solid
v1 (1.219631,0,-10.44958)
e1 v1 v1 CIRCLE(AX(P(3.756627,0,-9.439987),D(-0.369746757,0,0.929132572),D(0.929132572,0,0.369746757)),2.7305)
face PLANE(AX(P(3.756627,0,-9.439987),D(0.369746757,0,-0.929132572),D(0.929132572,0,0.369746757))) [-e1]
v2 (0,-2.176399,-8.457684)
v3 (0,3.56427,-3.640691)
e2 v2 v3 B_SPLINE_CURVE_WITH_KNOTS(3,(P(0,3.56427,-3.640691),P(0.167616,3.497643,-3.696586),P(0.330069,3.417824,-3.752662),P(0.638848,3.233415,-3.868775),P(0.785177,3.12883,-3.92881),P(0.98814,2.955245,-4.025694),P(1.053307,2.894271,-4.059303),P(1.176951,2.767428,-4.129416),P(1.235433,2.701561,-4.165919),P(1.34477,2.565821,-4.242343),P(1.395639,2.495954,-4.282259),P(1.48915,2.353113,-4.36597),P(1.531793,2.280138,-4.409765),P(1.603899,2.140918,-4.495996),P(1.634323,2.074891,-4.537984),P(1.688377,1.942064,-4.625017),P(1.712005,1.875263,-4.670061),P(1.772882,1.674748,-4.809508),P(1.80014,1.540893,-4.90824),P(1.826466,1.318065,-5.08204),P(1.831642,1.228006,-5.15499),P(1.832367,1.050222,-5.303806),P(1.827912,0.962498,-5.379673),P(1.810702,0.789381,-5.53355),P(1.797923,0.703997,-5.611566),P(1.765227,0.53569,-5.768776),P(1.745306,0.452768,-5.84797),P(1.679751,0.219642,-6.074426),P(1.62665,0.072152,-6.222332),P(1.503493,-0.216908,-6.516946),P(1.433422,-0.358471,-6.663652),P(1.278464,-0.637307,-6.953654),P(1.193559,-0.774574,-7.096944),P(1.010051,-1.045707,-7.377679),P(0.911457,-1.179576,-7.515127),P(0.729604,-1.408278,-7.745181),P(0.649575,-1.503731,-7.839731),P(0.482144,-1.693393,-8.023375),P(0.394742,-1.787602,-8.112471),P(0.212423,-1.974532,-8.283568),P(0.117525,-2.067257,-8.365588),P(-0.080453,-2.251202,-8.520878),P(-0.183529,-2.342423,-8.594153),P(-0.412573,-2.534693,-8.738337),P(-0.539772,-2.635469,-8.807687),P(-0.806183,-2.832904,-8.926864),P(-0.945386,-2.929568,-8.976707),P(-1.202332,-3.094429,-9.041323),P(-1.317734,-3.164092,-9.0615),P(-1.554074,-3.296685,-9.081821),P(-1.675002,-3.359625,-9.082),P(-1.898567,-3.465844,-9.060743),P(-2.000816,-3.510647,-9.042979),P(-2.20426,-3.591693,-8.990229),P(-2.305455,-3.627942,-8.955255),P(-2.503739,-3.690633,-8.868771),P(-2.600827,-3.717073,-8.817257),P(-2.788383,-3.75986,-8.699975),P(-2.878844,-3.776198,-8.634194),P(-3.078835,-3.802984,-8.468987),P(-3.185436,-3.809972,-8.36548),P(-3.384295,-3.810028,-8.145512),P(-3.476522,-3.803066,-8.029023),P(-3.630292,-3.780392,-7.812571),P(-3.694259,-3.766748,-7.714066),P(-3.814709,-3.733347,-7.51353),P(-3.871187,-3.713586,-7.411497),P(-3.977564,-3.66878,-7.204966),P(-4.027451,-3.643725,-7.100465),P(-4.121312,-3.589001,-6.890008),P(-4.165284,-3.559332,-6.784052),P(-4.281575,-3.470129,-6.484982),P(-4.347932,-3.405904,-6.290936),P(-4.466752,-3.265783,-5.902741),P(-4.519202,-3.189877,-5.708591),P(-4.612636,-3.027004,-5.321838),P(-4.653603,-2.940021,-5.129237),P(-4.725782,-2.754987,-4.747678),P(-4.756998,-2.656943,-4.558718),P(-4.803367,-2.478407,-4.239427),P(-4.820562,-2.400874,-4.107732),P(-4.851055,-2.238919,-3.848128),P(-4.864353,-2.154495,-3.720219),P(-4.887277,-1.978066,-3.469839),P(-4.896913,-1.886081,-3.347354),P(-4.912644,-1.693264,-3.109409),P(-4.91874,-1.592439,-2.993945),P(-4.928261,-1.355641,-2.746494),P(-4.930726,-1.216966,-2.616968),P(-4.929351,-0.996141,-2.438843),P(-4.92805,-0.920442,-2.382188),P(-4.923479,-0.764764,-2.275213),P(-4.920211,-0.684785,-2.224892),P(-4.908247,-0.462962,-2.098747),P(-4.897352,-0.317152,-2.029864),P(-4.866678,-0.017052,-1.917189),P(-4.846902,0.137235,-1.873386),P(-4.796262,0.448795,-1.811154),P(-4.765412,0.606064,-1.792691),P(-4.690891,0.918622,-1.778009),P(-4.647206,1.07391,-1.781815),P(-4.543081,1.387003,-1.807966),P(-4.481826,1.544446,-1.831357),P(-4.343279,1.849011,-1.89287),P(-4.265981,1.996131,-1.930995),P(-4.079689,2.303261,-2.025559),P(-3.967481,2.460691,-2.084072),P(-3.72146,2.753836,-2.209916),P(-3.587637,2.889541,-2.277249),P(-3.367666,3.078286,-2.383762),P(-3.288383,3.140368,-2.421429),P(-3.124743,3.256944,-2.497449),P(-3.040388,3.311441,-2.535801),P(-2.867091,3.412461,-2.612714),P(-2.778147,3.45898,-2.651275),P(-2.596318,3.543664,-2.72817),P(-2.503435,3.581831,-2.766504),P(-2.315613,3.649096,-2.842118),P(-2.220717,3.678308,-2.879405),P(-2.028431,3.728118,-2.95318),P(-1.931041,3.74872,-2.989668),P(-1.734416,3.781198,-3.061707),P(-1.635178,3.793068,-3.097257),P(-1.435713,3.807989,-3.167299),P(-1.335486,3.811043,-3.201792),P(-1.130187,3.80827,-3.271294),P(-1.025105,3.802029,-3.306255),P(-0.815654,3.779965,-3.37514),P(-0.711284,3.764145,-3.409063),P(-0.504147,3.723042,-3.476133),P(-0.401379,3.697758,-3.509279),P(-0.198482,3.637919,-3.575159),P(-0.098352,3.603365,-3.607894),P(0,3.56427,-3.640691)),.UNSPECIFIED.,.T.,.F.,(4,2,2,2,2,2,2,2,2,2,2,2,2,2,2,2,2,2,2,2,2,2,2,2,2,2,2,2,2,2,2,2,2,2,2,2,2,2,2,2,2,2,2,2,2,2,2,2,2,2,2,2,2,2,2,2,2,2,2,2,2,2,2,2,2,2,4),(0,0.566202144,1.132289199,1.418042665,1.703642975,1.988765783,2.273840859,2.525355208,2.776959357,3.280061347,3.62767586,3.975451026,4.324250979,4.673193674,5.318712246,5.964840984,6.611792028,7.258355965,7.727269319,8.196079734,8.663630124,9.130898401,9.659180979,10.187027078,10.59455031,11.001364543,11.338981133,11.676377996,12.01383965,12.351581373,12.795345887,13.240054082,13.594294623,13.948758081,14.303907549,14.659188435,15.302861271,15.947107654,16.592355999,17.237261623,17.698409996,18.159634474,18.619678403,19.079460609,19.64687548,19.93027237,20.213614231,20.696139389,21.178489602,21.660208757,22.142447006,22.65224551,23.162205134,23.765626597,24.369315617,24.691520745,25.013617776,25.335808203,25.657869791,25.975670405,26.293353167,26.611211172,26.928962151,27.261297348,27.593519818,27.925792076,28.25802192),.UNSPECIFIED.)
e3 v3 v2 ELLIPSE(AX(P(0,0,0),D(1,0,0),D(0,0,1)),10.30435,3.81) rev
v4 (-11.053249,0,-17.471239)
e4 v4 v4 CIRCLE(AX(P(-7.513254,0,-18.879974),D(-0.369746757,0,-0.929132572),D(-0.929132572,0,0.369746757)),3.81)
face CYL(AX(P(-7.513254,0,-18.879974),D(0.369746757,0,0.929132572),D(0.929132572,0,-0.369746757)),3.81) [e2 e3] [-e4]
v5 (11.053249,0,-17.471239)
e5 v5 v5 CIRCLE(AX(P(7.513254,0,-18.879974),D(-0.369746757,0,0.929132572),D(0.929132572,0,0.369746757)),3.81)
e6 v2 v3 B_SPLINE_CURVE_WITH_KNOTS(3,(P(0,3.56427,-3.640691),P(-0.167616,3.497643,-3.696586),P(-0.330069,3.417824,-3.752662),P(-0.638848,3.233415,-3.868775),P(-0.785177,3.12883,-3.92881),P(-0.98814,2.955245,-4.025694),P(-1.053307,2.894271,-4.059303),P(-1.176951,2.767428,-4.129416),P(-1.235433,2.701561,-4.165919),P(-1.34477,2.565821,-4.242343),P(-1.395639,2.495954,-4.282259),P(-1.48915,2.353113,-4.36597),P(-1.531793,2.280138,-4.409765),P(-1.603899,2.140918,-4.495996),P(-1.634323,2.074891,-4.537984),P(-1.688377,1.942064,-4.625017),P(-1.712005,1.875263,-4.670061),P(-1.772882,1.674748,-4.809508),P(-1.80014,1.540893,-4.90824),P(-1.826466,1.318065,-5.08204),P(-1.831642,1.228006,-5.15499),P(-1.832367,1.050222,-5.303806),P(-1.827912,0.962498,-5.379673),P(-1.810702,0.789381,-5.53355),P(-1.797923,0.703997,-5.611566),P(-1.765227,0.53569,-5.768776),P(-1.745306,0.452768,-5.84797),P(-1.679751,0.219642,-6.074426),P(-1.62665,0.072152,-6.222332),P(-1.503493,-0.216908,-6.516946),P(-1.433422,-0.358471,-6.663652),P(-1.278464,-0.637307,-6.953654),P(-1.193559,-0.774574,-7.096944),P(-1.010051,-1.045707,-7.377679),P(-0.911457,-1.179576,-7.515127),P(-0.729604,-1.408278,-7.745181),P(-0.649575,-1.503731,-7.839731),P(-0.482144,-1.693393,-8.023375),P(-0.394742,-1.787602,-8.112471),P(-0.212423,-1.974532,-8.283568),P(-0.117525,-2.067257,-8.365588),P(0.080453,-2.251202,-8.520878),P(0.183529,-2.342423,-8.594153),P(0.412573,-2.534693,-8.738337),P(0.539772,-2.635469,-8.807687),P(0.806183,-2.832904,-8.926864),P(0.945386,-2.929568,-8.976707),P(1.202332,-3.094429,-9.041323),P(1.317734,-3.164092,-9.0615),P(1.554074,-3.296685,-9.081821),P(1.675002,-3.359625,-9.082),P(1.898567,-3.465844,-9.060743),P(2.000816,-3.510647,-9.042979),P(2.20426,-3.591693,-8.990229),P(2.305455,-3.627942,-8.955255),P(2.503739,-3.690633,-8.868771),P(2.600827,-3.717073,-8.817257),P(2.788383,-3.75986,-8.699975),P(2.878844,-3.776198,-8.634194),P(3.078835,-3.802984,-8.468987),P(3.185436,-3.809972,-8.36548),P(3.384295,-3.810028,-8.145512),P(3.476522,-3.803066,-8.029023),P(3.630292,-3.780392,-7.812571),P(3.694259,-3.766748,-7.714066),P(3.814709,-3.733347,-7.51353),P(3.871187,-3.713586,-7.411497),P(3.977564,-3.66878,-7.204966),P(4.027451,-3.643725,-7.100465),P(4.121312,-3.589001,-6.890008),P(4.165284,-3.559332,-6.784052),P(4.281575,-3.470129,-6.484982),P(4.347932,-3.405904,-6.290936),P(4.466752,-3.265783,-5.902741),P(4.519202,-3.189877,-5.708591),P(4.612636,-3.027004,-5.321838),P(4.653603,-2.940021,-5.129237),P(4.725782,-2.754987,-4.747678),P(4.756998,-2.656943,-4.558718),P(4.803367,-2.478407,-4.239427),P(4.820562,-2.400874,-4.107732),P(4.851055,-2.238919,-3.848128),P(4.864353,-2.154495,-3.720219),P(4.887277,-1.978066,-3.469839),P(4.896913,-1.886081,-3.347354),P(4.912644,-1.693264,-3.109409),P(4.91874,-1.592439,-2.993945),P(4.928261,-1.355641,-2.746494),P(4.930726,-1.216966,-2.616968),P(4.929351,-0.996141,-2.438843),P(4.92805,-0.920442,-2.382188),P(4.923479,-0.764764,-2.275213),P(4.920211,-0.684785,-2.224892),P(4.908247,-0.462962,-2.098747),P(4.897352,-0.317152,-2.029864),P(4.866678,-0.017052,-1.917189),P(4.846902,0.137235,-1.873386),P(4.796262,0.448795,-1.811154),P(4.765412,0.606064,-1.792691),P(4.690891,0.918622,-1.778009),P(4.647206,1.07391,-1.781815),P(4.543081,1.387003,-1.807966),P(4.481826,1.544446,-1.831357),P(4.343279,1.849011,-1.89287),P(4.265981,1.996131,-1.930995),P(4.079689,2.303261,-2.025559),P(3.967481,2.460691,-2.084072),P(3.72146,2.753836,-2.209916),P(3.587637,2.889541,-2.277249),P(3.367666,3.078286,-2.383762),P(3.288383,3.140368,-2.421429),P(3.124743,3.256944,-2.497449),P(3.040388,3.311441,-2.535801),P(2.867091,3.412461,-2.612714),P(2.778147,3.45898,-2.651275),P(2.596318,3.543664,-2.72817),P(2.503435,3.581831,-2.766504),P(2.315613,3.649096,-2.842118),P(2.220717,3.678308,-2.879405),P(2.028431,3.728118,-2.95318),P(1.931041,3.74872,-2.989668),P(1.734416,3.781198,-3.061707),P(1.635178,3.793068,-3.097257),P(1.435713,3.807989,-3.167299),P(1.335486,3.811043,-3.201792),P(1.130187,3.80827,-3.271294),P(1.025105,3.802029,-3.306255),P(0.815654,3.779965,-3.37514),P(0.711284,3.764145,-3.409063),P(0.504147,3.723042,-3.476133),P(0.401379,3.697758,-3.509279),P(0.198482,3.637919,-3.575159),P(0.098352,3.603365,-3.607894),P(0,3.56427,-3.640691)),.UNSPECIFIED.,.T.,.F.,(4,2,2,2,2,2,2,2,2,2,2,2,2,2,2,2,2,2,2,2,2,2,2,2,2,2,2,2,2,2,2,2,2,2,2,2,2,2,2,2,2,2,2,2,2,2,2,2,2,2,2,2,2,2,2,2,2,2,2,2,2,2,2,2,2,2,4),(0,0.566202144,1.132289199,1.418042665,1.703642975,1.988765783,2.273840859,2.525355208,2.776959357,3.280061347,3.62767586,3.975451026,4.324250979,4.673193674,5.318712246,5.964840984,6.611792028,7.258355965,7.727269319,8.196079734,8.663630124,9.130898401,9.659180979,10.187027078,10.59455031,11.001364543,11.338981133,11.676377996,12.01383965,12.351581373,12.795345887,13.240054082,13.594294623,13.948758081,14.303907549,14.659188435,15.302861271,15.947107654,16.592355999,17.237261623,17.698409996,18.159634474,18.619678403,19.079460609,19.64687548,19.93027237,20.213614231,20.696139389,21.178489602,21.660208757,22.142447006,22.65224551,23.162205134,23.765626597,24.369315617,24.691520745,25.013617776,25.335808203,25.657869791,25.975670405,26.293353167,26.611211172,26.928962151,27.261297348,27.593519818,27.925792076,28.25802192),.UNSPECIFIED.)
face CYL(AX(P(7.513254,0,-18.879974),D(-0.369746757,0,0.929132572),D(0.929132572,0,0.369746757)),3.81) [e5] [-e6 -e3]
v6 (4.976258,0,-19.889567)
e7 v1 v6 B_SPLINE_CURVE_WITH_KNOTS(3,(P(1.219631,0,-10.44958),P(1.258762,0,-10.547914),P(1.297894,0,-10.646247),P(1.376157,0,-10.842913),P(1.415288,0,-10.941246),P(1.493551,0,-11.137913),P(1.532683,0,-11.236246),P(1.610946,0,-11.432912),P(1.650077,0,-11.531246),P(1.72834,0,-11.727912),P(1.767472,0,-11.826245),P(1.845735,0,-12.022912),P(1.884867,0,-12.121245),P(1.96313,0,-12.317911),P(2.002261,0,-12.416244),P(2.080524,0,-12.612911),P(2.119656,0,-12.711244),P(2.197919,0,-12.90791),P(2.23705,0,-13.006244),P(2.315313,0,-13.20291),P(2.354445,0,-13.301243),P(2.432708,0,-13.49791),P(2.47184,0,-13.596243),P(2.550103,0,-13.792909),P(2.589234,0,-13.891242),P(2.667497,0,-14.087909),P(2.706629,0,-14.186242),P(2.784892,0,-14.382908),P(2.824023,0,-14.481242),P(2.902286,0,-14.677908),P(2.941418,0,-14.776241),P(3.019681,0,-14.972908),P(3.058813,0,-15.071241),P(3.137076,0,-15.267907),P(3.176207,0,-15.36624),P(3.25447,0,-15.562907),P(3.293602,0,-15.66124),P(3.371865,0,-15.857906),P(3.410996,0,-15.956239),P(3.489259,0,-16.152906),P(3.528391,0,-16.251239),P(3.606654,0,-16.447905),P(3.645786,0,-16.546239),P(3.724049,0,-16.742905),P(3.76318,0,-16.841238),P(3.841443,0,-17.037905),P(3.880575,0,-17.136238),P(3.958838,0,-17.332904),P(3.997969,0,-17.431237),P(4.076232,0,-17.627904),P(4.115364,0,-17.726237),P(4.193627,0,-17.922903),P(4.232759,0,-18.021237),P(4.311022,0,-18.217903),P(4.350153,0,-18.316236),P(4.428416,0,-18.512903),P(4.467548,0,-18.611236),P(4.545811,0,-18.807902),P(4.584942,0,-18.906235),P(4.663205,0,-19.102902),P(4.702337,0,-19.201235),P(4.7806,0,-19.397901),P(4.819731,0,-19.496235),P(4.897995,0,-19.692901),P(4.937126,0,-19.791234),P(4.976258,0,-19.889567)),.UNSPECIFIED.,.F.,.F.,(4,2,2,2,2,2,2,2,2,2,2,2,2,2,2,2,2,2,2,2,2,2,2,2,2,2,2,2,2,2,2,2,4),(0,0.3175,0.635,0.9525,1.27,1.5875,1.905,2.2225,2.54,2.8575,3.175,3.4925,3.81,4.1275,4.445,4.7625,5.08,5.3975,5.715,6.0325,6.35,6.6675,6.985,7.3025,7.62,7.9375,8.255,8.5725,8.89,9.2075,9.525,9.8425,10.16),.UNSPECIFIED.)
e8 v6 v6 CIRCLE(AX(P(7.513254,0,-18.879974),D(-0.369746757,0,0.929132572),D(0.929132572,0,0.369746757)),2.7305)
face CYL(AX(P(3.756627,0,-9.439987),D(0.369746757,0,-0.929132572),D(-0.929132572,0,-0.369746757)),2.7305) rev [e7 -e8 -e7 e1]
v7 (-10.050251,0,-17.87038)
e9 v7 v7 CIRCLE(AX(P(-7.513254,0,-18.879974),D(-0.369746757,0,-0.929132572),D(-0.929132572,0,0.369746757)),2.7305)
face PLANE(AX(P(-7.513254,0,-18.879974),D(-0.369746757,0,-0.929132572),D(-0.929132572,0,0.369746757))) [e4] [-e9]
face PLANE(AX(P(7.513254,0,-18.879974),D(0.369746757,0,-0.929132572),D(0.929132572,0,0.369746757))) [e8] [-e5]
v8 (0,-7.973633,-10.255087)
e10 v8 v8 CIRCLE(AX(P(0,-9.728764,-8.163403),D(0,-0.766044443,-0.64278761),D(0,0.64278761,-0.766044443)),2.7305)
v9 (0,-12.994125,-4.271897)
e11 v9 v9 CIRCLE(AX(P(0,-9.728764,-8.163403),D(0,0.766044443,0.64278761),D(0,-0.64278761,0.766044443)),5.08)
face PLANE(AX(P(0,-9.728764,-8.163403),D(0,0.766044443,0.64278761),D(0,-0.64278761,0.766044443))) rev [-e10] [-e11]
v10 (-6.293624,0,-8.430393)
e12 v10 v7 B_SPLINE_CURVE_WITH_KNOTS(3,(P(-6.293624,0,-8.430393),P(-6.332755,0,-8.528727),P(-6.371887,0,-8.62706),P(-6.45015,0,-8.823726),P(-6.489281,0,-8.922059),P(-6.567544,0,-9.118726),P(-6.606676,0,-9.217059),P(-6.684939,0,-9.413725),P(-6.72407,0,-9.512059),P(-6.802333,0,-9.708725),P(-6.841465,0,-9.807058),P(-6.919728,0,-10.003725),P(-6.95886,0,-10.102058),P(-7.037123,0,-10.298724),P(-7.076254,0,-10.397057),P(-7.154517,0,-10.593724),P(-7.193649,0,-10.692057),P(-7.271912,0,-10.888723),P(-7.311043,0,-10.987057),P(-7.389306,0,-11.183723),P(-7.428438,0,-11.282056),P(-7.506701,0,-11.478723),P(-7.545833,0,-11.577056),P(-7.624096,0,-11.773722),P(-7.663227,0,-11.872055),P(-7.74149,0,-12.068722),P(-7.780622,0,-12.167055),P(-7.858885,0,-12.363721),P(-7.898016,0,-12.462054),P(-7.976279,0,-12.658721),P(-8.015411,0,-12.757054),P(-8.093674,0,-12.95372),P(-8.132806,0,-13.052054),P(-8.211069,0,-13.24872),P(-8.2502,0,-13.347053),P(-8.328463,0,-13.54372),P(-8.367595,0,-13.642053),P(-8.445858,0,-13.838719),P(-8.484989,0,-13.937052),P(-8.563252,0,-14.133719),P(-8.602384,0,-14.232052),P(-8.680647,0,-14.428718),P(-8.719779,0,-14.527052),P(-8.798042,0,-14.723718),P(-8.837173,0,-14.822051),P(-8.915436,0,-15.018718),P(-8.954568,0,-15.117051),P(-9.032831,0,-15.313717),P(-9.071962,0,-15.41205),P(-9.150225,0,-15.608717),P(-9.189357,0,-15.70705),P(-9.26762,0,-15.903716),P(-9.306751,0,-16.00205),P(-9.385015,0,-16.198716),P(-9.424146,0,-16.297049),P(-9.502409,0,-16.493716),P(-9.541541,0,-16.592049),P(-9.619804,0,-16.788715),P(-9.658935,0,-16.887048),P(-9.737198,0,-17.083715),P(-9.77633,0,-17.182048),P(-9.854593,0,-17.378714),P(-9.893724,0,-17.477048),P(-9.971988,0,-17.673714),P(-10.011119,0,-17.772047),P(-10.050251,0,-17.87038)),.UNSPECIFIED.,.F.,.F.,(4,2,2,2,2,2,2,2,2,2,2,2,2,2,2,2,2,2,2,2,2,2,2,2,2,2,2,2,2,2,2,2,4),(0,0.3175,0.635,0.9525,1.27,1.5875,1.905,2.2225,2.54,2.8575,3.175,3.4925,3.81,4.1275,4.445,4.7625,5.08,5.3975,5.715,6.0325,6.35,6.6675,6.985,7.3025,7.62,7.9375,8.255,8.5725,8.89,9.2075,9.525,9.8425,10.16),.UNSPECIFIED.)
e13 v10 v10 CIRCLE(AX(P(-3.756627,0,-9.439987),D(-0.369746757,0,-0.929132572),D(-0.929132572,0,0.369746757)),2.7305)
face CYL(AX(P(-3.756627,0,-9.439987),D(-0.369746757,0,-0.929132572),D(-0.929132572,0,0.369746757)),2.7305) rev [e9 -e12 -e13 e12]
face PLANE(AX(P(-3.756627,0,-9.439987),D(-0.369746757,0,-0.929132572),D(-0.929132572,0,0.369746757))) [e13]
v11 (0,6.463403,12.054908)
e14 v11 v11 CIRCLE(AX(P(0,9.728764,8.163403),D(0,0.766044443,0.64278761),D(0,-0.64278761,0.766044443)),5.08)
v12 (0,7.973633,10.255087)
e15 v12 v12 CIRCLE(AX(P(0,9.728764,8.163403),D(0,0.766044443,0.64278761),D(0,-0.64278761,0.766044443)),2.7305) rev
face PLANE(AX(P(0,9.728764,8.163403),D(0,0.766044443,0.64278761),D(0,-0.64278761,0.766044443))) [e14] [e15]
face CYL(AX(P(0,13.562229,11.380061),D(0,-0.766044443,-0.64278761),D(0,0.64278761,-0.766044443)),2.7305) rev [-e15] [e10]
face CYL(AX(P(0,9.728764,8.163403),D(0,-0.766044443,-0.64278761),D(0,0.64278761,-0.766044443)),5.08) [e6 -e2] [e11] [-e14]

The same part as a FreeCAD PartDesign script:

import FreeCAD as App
import Part
import Sketcher
Q = App.Units.Quantity

doc = App.newDocument("Part")
params = doc.addObject("Spreadsheet::Sheet", "Params")
for row, (alias, value) in enumerate([
    ("sketch1_diameter", "0.4 in"),
    ("pad1_length", "1 in"),
    ("sketch2_diameter", "0.3 in"),
    ("pad2_length", "0.8 in"),
    ("sketch3_diameter", "0.215 in"),
    ("pocket1_length", "0.4 in"),
    ("sketch4_diameter", "0.215 in"),
], start=1):
    params.set(f"A{row}", alias)
    params.set(f"B{row}", "=" + value)
    params.setAlias(f"B{row}", alias)

body = doc.addObject("PartDesign::Body", "Body")

# Sketch on an angled plane
sketch1 = body.newObject("Sketcher::SketchObject", "Sketch")
sketch1.Placement = App.Placement(App.Vector(0, 0, 0), App.Rotation(App.Vector(1, 0, 0), App.Vector(0, 0.64278761, -0.766044443), App.Vector(0, 0.766044443, 0.64278761), "ZXY"))
sketch1.addGeometry(Part.Circle(App.Vector(0, 0, 0), App.Vector(0, 0, 1), 5), False)
sketch1.addConstraint([
    Sketcher.Constraint("Coincident", 0, 3, -1, 1),
    Sketcher.Constraint("Diameter", 0, Q("0.4 in")),
])
sketch1.setExpression("Constraints[1]", "Params.sketch1_diameter")
pad1 = body.newObject("PartDesign::Pad", "Pad")
pad1.Profile = sketch1
pad1.setExpression("Length", "Params.pad1_length")
pad1.Midplane = True

# Sketch on an angled plane
sketch2 = body.newObject("Sketcher::SketchObject", "Sketch001")
sketch2.Placement = App.Placement(App.Vector(0, 0, 0), App.Rotation(App.Vector(0, -1, 0), App.Vector(-0.929132572, 0, 0.369746757), App.Vector(-0.369746757, 0, -0.929132572), "ZXY"))
sketch2.addGeometry(Part.Circle(App.Vector(0, 0, 0), App.Vector(0, 0, 1), 3.8), False)
sketch2.addConstraint([
    Sketcher.Constraint("Coincident", 0, 3, -1, 1),
    Sketcher.Constraint("Diameter", 0, Q("0.3 in")),
])
sketch2.setExpression("Constraints[1]", "Params.sketch2_diameter")
pad2 = body.newObject("PartDesign::Pad", "Pad001")
pad2.Profile = sketch2
pad2.setExpression("Length", "Params.pad2_length")

# Sketch on an angled plane
sketch3 = body.newObject("Sketcher::SketchObject", "Sketch002")
sketch3.Placement = App.Placement(App.Vector(-7.513254, 0, -18.879974), App.Rotation(App.Vector(-0.929132572, 0, 0.369746757), App.Vector(0, 1.000000001, 0), App.Vector(-0.369746757, 0, -0.929132572), "ZXY"))
sketch3.addGeometry(Part.Circle(App.Vector(0, 0, 0), App.Vector(0, 0, 1), 2.7), False)
sketch3.addConstraint([
    Sketcher.Constraint("Coincident", 0, 3, -1, 1),
    Sketcher.Constraint("Diameter", 0, Q("0.215 in")),
])
sketch3.setExpression("Constraints[1]", "Params.sketch3_diameter")
pocket1 = body.newObject("PartDesign::Pocket", "Pocket")
pocket1.Profile = sketch3
pocket1.setExpression("Length", "Params.pocket1_length")
doc.recompute()

mirrored = body.newObject("PartDesign::Mirrored", "Mirrored")
mirrored.Originals = [pad2, pocket1]
mirrored.MirrorPlane = (doc.getObject("YZ_Plane"), [""])
body.Tip = mirrored

# Sketch on an angled plane
sketch4 = body.newObject("Sketcher::SketchObject", "Sketch003")
sketch4.Placement = App.Placement(App.Vector(0, -9.728764, -8.163403), App.Rotation(App.Vector(1, 0, 0), App.Vector(0, -0.64278761, 0.766044443), App.Vector(0, -0.766044443, -0.64278761), "ZXY"))
sketch4.addGeometry(Part.Circle(App.Vector(0, 0, 0), App.Vector(0, 0, 1), 2.7), False)
sketch4.addConstraint([
    Sketcher.Constraint("Coincident", 0, 3, -1, 1),
    Sketcher.Constraint("Diameter", 0, Q("0.215 in")),
])
sketch4.setExpression("Constraints[1]", "Params.sketch4_diameter")
pocket2 = body.newObject("PartDesign::Pocket", "Pocket001")
pocket2.Profile = sketch4
pocket2.Type = "UpToFirst"

doc.recompute()
